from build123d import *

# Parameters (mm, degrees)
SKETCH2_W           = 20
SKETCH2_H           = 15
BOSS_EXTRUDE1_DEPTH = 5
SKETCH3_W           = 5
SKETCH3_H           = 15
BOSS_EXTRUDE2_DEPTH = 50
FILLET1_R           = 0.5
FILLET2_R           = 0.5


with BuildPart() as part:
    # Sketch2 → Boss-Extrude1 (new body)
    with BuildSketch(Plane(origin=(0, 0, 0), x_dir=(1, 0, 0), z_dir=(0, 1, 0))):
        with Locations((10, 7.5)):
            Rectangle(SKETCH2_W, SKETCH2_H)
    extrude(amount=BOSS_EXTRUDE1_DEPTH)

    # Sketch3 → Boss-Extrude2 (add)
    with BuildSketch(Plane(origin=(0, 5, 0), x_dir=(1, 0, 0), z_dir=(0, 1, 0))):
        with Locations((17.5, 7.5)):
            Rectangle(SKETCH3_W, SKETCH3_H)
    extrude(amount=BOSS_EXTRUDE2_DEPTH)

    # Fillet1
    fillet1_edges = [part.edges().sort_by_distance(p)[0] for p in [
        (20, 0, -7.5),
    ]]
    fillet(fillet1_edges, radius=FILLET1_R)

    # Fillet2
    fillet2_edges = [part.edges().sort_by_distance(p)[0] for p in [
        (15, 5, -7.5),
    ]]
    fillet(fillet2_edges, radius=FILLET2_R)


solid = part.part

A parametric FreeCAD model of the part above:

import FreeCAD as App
import Part
import Sketcher
from FreeCAD import Vector


def edges_at(feature, points):
    """Names of the edges that pass closest to the given points."""
    edges = feature.Shape.Edges
    near = lambda p: min(range(len(edges)), key=lambda i: edges[i].distToShape(Part.Vertex(*p))[0])
    return sorted({f"Edge{near(p) + 1}" for p in points})

doc = App.newDocument("Part")
body = doc.addObject("PartDesign::Body", "Body")

# Sketch on XZ plane
sketch1 = body.newObject("Sketcher::SketchObject", "Sketch")
sketch1.AttachmentSupport = (doc.getObject("XZ_Plane"), [""])
sketch1.MapMode = "FlatFace"
sketch1.addGeometry([
    Part.LineSegment(Vector(0, -15, 0), Vector(0, 0, 0)),
    Part.LineSegment(Vector(0, 0, 0), Vector(20, 0, 0)),
    Part.LineSegment(Vector(20, 0, 0), Vector(20, -15, 0)),
    Part.LineSegment(Vector(20, -15, 0), Vector(0, -15, 0)),
], False)
sketch1.addConstraint([
    Sketcher.Constraint("Coincident", 0, 2, 1, 1),
    Sketcher.Constraint("Coincident", 1, 2, 2, 1),
    Sketcher.Constraint("Coincident", 2, 2, 3, 1),
    Sketcher.Constraint("Coincident", 3, 2, 0, 1),
    Sketcher.Constraint("Vertical", 0),
    Sketcher.Constraint("Horizontal", 1),
    Sketcher.Constraint("Vertical", 2),
    Sketcher.Constraint("Horizontal", 3),
    Sketcher.Constraint("Coincident", 0, 2, -1, 1),
    Sketcher.Constraint("DistanceX", 1, 1, 1, 2, 20.0),
    Sketcher.Constraint("DistanceY", 0, 1, 0, 2, 15.0),
])
pad1 = body.newObject("PartDesign::Pad", "Pad")
pad1.Profile = sketch1
pad1.Length = 5
pad1.Reversed = True

# Sketch on XZ plane
sketch2 = body.newObject("Sketcher::SketchObject", "Sketch001")
sketch2.AttachmentSupport = (doc.getObject("XZ_Plane"), [""])
sketch2.MapMode = "FlatFace"
sketch2.AttachmentOffset = App.Placement(Vector(0, 0, -5), App.Rotation())
sketch2.addGeometry([
    Part.LineSegment(Vector(15, -15, 0), Vector(15, 0, 0)),
    Part.LineSegment(Vector(15, 0, 0), Vector(20, 0, 0)),
    Part.LineSegment(Vector(20, 0, 0), Vector(20, -15, 0)),
    Part.LineSegment(Vector(20, -15, 0), Vector(15, -15, 0)),
], False)
sketch2.addConstraint([
    Sketcher.Constraint("Coincident", 0, 2, 1, 1),
    Sketcher.Constraint("Coincident", 1, 2, 2, 1),
    Sketcher.Constraint("Coincident", 2, 2, 3, 1),
    Sketcher.Constraint("Coincident", 3, 2, 0, 1),
    Sketcher.Constraint("Vertical", 0),
    Sketcher.Constraint("Horizontal", 1),
    Sketcher.Constraint("Vertical", 2),
    Sketcher.Constraint("Horizontal", 3),
    Sketcher.Constraint("PointOnObject", 0, 2, -1),
    Sketcher.Constraint("DistanceX", 1, 1, 1, 2, 5.0),
    Sketcher.Constraint("DistanceY", 0, 1, 0, 2, 15.0),
    Sketcher.Constraint("DistanceX", -1, 1, 0, 2, 15.0),
])
pad2 = body.newObject("PartDesign::Pad", "Pad001")
pad2.Profile = sketch2
pad2.Length = 50
pad2.Reversed = True
doc.recompute()

fillet = body.newObject("PartDesign::Fillet", "Fillet")
fillet.Base = (pad2, edges_at(pad2, [(20, 0, -7.5)]))
fillet.Radius = 0.5
doc.recompute()

fillet2 = body.newObject("PartDesign::Fillet", "Fillet001")
fillet2.Base = (fillet, edges_at(fillet, [(15, 5, -7.5)]))
fillet2.Radius = 0.5

doc.recompute()
